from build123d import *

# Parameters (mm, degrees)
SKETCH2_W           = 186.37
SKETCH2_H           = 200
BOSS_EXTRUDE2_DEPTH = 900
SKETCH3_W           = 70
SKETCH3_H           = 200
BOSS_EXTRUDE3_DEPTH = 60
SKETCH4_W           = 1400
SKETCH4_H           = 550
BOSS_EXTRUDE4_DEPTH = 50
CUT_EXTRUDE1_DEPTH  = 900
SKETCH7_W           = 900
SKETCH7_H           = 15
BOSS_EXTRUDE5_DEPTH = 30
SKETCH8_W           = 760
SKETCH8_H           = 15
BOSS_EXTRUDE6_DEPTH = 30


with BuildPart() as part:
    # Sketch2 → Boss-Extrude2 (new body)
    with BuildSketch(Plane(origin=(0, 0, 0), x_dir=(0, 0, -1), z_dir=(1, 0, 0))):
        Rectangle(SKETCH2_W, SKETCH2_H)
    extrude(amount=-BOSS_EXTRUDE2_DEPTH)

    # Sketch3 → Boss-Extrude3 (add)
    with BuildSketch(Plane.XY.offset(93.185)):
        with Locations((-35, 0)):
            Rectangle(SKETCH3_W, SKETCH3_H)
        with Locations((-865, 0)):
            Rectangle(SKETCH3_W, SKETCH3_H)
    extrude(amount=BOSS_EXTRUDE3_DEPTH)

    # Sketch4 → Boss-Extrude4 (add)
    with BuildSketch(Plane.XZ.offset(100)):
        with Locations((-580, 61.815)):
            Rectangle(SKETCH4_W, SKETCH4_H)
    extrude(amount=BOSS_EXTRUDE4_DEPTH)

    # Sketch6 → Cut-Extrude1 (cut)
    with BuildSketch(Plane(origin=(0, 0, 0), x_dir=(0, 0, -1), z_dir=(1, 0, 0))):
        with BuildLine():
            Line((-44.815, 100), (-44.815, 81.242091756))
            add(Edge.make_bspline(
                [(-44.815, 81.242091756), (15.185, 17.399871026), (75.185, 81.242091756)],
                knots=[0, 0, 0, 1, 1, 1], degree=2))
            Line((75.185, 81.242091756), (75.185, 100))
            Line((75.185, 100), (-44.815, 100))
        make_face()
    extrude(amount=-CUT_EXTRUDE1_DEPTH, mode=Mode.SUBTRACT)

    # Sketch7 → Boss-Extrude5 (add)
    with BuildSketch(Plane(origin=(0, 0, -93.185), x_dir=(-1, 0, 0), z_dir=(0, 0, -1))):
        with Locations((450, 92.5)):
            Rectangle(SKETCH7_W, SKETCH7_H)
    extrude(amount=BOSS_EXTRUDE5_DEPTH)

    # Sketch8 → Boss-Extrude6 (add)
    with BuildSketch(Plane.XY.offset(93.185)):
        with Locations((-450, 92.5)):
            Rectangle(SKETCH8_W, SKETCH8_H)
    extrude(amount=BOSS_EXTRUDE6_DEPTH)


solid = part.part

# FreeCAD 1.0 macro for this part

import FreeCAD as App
import Part
import Sketcher

V = App.Vector


def add_polygon(sketch, points):
    """Adds a closed chain of lines whose ends are joined by coincident constraints."""
    first, n = sketch.GeometryCount, len(points)
    for a, b in zip(points, points[1:] + points[:1]):
        sketch.addGeometry(Part.LineSegment(App.Vector(*a, 0), App.Vector(*b, 0)), False)
    for i in range(n):
        sketch.addConstraint(Sketcher.Constraint("Coincident", first + i, 2, first + (i + 1) % n, 1))

doc = App.newDocument("Part")
body = doc.addObject("PartDesign::Body", "Body")

# Sketch on YZ plane
sketch1 = body.newObject("Sketcher::SketchObject", "Sketch")
sketch1.AttachmentSupport = (doc.getObject("YZ_Plane"), [""])
sketch1.MapMode = "FlatFace"
add_polygon(sketch1, [(100, 93.185), (-100, 93.185), (-100, -93.185), (100, -93.185)])  # lines 0-3
sketch1.addConstraint([
    Sketcher.Constraint("Horizontal", 0),
    Sketcher.Constraint("Vertical", 1),
    Sketcher.Constraint("Horizontal", 2),
    Sketcher.Constraint("Vertical", 3),
    Sketcher.Constraint("Symmetric", 0, 2, 2, 2, -1, 1),
    Sketcher.Constraint("DistanceX", 0, 2, 0, 1, 200.0),
    Sketcher.Constraint("DistanceY", 1, 2, 1, 1, 186.37),
])
pad1 = body.newObject("PartDesign::Pad", "Pad")
pad1.Profile = sketch1
pad1.Length = 900
pad1.Reversed = True

# Sketch on XY plane
sketch2 = body.newObject("Sketcher::SketchObject", "Sketch001")
sketch2.AttachmentSupport = (doc.getObject("XY_Plane"), [""])
sketch2.MapMode = "FlatFace"
sketch2.AttachmentOffset = App.Placement(V(0, 0, 93.185), App.Rotation())
add_polygon(sketch2, [(-70, 100), (-70, -100), (0, -100), (0, 100)])  # lines 0-3
add_polygon(sketch2, [(-900, 100), (-900, -100), (-830, -100), (-830, 100)])  # lines 4-7
sketch2.addConstraint([
    Sketcher.Constraint("Vertical", 0),
    Sketcher.Constraint("Horizontal", 1),
    Sketcher.Constraint("Vertical", 2),
    Sketcher.Constraint("Horizontal", 3),
    Sketcher.Constraint("Vertical", 4),
    Sketcher.Constraint("Horizontal", 5),
    Sketcher.Constraint("Vertical", 6),
    Sketcher.Constraint("Horizontal", 7),
    Sketcher.Constraint("Symmetric", 1, 2, 2, 2, -1, 1),
    Sketcher.Constraint("Horizontal", 1, 2, 4, 2),
    Sketcher.Constraint("Horizontal", 3, 2, 6, 2),
    Sketcher.Constraint("Equal", 3, 5),
    Sketcher.Constraint("DistanceX", 1, 1, 1, 2, 70.0),
    Sketcher.Constraint("DistanceY", 0, 2, 0, 1, 200.0),
    Sketcher.Constraint("DistanceX", 4, 2, -1, 1, 900.0),
])
pad2 = body.newObject("PartDesign::Pad", "Pad001")
pad2.Profile = sketch2
pad2.Length = 60

# Sketch on XZ plane
sketch3 = body.newObject("Sketcher::SketchObject", "Sketch002")
sketch3.AttachmentSupport = (doc.getObject("XZ_Plane"), [""])
sketch3.MapMode = "FlatFace"
sketch3.AttachmentOffset = App.Placement(V(0, 0, 100), App.Rotation())
add_polygon(sketch3, [(-1280, 336.815), (-1280, -213.185), (120, -213.185), (120, 336.815)])  # lines 0-3
sketch3.addConstraint([
    Sketcher.Constraint("Vertical", 0),
    Sketcher.Constraint("Horizontal", 1),
    Sketcher.Constraint("Vertical", 2),
    Sketcher.Constraint("Horizontal", 3),
    Sketcher.Constraint("DistanceX", 1, 1, 1, 2, 1400.0),
    Sketcher.Constraint("DistanceY", 0, 2, 0, 1, 550.0),
    Sketcher.Constraint("DistanceX", 0, 2, -1, 1, 1280.0),
    Sketcher.Constraint("DistanceY", 0, 2, -1, 1, 213.185),
])
pad3 = body.newObject("PartDesign::Pad", "Pad002")
pad3.Profile = sketch3
pad3.Length = 50

# Sketch on YZ plane
sketch4 = body.newObject("Sketcher::SketchObject", "Sketch003")
sketch4.AttachmentSupport = (doc.getObject("YZ_Plane"), [""])
sketch4.MapMode = "FlatFace"
sketch4.addGeometry([
    Part.LineSegment(V(100, 44.815, 0), V(81.242092, 44.815, 0)),
    Part.BSplineCurve([V(81.242092, 44.815, 0), V(17.399871, -15.185, 0), V(81.242092, -75.185, 0)], [3, 3], [0, 1], False, 2, [1, 1, 1], False),
    Part.LineSegment(V(81.242092, -75.185, 0), V(100, -75.185, 0)),
    Part.LineSegment(V(100, -75.185, 0), V(100, 44.815, 0)),
], False)
sketch4.addConstraint([
    Sketcher.Constraint("Block", 1),
    Sketcher.Constraint("Coincident", 0, 2, 1, 1),
    Sketcher.Constraint("Coincident", 1, 2, 2, 1),
    Sketcher.Constraint("Coincident", 2, 2, 3, 1),
    Sketcher.Constraint("Coincident", 3, 2, 0, 1),
    Sketcher.Constraint("Horizontal", 0),
    Sketcher.Constraint("Horizontal", 2),
    Sketcher.Constraint("Vertical", 3),
    Sketcher.Constraint("DistanceX", -1, 1, 2, 2, 100.0),
])
pocket1 = body.newObject("PartDesign::Pocket", "Pocket")
pocket1.Profile = sketch4
pocket1.Length = 900

# Sketch on XY plane
sketch5 = body.newObject("Sketcher::SketchObject", "Sketch004")
sketch5.AttachmentSupport = (doc.getObject("XY_Plane"), [""])
sketch5.MapMode = "FlatFace"
sketch5.AttachmentOffset = App.Placement(V(0, 0, -93.185), App.Rotation())
add_polygon(sketch5, [(0, 100), (0, 85), (-900, 85), (-900, 100)])  # lines 0-3
sketch5.addConstraint([
    Sketcher.Constraint("Vertical", 0),
    Sketcher.Constraint("Horizontal", 1),
    Sketcher.Constraint("Vertical", 2),
    Sketcher.Constraint("Horizontal", 3),
    Sketcher.Constraint("PointOnObject", 0, 2, -2),
    Sketcher.Constraint("DistanceX", 1, 2, 1, 1, 900.0),
    Sketcher.Constraint("DistanceY", 0, 2, 0, 1, 15.0),
    Sketcher.Constraint("DistanceY", -1, 1, 0, 2, 85.0),
])
pad4 = body.newObject("PartDesign::Pad", "Pad003")
pad4.Profile = sketch5
pad4.Length = 30
pad4.Reversed = True

# Sketch on XY plane
sketch6 = body.newObject("Sketcher::SketchObject", "Sketch005")
sketch6.AttachmentSupport = (doc.getObject("XY_Plane"), [""])
sketch6.MapMode = "FlatFace"
sketch6.AttachmentOffset = App.Placement(V(0, 0, 93.185), App.Rotation())
add_polygon(sketch6, [(-830, 100), (-830, 85), (-70, 85), (-70, 100)])  # lines 0-3
sketch6.addConstraint([
    Sketcher.Constraint("Vertical", 0),
    Sketcher.Constraint("Horizontal", 1),
    Sketcher.Constraint("Vertical", 2),
    Sketcher.Constraint("Horizontal", 3),
    Sketcher.Constraint("DistanceX", 1, 1, 1, 2, 760.0),
    Sketcher.Constraint("DistanceY", 0, 2, 0, 1, 15.0),
    Sketcher.Constraint("DistanceX", 0, 2, -1, 1, 830.0),
    Sketcher.Constraint("DistanceY", -1, 1, 0, 2, 85.0),
])
pad5 = body.newObject("PartDesign::Pad", "Pad004")
pad5.Profile = sketch6
pad5.Length = 30

doc.recompute()
